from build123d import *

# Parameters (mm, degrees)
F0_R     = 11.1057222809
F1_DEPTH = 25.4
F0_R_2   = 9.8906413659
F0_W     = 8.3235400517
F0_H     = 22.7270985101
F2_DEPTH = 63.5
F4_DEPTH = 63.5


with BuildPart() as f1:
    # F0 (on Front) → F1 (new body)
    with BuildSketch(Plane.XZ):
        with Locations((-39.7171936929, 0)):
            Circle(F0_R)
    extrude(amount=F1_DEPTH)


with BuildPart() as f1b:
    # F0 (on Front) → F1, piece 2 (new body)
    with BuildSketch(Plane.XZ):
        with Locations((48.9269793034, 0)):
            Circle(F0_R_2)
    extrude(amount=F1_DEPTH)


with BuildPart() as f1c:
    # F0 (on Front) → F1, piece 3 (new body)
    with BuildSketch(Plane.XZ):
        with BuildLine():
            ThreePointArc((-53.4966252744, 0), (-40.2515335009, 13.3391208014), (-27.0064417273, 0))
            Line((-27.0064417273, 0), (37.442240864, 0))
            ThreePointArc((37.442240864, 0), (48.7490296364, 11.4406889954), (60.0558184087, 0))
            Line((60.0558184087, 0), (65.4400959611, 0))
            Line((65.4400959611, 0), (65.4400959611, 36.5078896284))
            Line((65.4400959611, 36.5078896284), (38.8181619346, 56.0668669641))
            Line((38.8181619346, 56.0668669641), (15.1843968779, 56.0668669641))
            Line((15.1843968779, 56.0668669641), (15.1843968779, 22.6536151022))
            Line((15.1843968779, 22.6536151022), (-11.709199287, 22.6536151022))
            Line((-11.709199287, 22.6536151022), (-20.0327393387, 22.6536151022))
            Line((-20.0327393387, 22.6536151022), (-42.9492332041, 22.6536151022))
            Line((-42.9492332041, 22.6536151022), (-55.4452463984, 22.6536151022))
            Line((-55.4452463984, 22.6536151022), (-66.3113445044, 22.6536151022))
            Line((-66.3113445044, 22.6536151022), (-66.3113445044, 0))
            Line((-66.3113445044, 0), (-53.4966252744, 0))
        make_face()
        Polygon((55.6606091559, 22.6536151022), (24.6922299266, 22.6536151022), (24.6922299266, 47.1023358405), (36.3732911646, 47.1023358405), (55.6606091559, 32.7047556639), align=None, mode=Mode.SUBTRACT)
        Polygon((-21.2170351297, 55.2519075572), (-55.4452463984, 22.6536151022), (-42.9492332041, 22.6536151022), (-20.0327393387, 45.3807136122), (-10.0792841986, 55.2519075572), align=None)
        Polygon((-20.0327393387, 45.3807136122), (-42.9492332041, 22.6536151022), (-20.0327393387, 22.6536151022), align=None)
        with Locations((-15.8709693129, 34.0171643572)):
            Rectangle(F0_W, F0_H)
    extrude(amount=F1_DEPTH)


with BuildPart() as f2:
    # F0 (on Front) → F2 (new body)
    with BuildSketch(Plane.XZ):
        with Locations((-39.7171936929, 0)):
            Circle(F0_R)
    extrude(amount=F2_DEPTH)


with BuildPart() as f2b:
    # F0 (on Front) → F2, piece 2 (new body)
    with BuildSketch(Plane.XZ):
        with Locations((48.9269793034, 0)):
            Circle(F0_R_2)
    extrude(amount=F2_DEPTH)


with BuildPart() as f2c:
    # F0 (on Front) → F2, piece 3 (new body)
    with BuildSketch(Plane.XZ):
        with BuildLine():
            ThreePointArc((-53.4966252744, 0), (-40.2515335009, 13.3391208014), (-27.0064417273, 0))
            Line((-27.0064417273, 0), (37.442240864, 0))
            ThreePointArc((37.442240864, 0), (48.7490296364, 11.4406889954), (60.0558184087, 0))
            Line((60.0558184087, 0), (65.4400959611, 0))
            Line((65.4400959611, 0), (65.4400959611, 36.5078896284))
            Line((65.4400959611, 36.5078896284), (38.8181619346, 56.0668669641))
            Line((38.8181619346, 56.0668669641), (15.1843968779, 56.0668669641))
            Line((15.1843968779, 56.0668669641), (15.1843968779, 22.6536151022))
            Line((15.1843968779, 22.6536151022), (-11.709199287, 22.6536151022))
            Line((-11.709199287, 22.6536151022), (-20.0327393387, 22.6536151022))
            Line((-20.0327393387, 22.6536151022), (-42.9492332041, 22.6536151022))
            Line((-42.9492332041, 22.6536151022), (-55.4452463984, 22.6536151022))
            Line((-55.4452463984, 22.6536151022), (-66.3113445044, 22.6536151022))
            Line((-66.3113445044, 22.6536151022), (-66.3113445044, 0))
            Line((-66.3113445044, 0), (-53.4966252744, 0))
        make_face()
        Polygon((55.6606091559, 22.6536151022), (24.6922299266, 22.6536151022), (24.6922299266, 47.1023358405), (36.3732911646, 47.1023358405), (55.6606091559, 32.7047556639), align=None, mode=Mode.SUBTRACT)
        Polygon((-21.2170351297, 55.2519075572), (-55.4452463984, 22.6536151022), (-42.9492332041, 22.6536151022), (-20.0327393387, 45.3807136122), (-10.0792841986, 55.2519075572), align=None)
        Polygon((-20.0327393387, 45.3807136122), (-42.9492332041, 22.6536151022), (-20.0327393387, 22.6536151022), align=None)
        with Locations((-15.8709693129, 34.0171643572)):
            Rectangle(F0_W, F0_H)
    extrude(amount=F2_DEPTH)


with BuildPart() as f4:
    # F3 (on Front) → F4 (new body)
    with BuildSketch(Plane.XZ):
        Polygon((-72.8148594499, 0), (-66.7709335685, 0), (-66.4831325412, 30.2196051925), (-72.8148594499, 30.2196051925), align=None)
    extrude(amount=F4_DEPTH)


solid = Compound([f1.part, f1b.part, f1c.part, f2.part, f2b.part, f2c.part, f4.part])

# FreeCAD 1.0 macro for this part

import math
import FreeCAD as App
import Part
import Sketcher
from FreeCAD import Vector
Q = App.Units.Quantity

doc = App.newDocument("Part")
body = doc.addObject("PartDesign::Body", "Body")

# Sketch on XZ plane
sketch1 = body.newObject("Sketcher::SketchObject", "Sketch")
sketch1.AttachmentSupport = (doc.getObject("XZ_Plane"), [""])
sketch1.MapMode = "FlatFace"
sketch1.addGeometry(Part.Circle(Vector(-40, 0, 0), Vector(0, 0, 1), 11), False)
sketch1.addConstraint([
    Sketcher.Constraint("PointOnObject", 0, 3, -1),
    Sketcher.Constraint("Diameter", 0, Q("22.211445 mm")),
    Sketcher.Constraint("DistanceX", 0, 3, -1, 1, Q("39.717194 mm")),
])
pad1 = body.newObject("PartDesign::Pad", "Pad")
pad1.Profile = sketch1
pad1.Length = Q("1 in")
body2 = doc.addObject("PartDesign::Body", "Body001")

# Sketch on XZ plane
sketch2 = body2.newObject("Sketcher::SketchObject", "Sketch001")
sketch2.AttachmentSupport = (doc.getObject("XZ_Plane001"), [""])
sketch2.MapMode = "FlatFace"
sketch2.addGeometry(Part.Circle(Vector(49, 0, 0), Vector(0, 0, 1), 10), False)
sketch2.addConstraint([
    Sketcher.Constraint("PointOnObject", 0, 3, -1),
    Sketcher.Constraint("Diameter", 0, Q("19.781283 mm")),
    Sketcher.Constraint("DistanceX", -1, 1, 0, 3, Q("48.926979 mm")),
])
pad2 = body2.newObject("PartDesign::Pad", "Pad001")
pad2.Profile = sketch2
pad2.Length = Q("1 in")
body3 = doc.addObject("PartDesign::Body", "Body002")

# Sketch on XZ plane
sketch3 = body3.newObject("Sketcher::SketchObject", "Sketch002")
sketch3.AttachmentSupport = (doc.getObject("XZ_Plane002"), [""])
sketch3.MapMode = "FlatFace"
sketch3.addGeometry([
    Part.ArcOfCircle(Part.Circle(Vector(-40, 0, 0), Vector(0, 0, 1), 13), math.radians(0), math.radians(180)),  # 0
    Part.LineSegment(Vector(-27, 0, 0), Vector(37, 0, 0)),  # 1
    Part.ArcOfCircle(Part.Circle(Vector(49, 0, 0), Vector(0, 0, 1), 11), math.radians(-1), math.radians(181)),  # 2
    Part.LineSegment(Vector(60, 0, 0), Vector(65, 0, 0)),  # 3
    Part.LineSegment(Vector(65, 0, 0), Vector(65, 37, 0)),  # 4
    Part.LineSegment(Vector(65, 37, 0), Vector(39, 56, 0)),  # 5
    Part.LineSegment(Vector(39, 56, 0), Vector(15, 56, 0)),  # 6
    Part.LineSegment(Vector(15, 56, 0), Vector(15, 23, 0)),  # 7
    Part.LineSegment(Vector(15, 23, 0), Vector(-12, 23, 0)),  # 8
    Part.LineSegment(Vector(-12, 23, 0), Vector(-12, 45, 0)),  # 9
    Part.LineSegment(Vector(-12, 45, 0), Vector(-20, 45, 0)),  # 10
    Part.LineSegment(Vector(-20, 45, 0), Vector(-10, 55, 0)),  # 11
    Part.LineSegment(Vector(-10, 55, 0), Vector(-21, 55, 0)),  # 12
    Part.LineSegment(Vector(-21, 55, 0), Vector(-55, 23, 0)),  # 13
    Part.LineSegment(Vector(-55, 23, 0), Vector(-66, 23, 0)),  # 14
    Part.LineSegment(Vector(-66, 23, 0), Vector(-66, 0, 0)),  # 15
    Part.LineSegment(Vector(-66, 0, 0), Vector(-53, 0, 0)),  # 16
    Part.LineSegment(Vector(56, 33, 0), Vector(56, 23, 0)),  # 17
    Part.LineSegment(Vector(56, 23, 0), Vector(25, 23, 0)),  # 18
    Part.LineSegment(Vector(25, 23, 0), Vector(25, 47, 0)),  # 19
    Part.LineSegment(Vector(25, 47, 0), Vector(36, 47, 0)),  # 20
    Part.LineSegment(Vector(36, 47, 0), Vector(56, 33, 0)),  # 21
], False)
sketch3.addConstraint([
    Sketcher.Constraint("Coincident", 0, 1, 1, 1),
    Sketcher.Constraint("Coincident", 1, 2, 2, 2),
    Sketcher.Constraint("Coincident", 2, 1, 3, 1),
    Sketcher.Constraint("Coincident", 3, 2, 4, 1),
    Sketcher.Constraint("Coincident", 4, 2, 5, 1),
    Sketcher.Constraint("Coincident", 5, 2, 6, 1),
    Sketcher.Constraint("Coincident", 6, 2, 7, 1),
    Sketcher.Constraint("Coincident", 7, 2, 8, 1),
    Sketcher.Constraint("Coincident", 8, 2, 9, 1),
    Sketcher.Constraint("Coincident", 9, 2, 10, 1),
    Sketcher.Constraint("Coincident", 10, 2, 11, 1),
    Sketcher.Constraint("Coincident", 11, 2, 12, 1),
    Sketcher.Constraint("Coincident", 12, 2, 13, 1),
    Sketcher.Constraint("Coincident", 13, 2, 14, 1),
    Sketcher.Constraint("Coincident", 14, 2, 15, 1),
    Sketcher.Constraint("Coincident", 15, 2, 16, 1),
    Sketcher.Constraint("Coincident", 16, 2, 0, 2),
    Sketcher.Constraint("Coincident", 17, 2, 18, 1),
    Sketcher.Constraint("Coincident", 18, 2, 19, 1),
    Sketcher.Constraint("Coincident", 19, 2, 20, 1),
    Sketcher.Constraint("Coincident", 20, 2, 21, 1),
    Sketcher.Constraint("Coincident", 21, 2, 17, 1),
    Sketcher.Constraint("Horizontal", 1),
    Sketcher.Constraint("Horizontal", 3),
    Sketcher.Constraint("Vertical", 4),
    Sketcher.Constraint("Horizontal", 6),
    Sketcher.Constraint("Vertical", 7),
    Sketcher.Constraint("Horizontal", 8),
    Sketcher.Constraint("Vertical", 9),
    Sketcher.Constraint("Horizontal", 10),
    Sketcher.Constraint("Horizontal", 12),
    Sketcher.Constraint("Horizontal", 14),
    Sketcher.Constraint("Vertical", 15),
    Sketcher.Constraint("Horizontal", 16),
    Sketcher.Constraint("Vertical", 17),
    Sketcher.Constraint("Horizontal", 18),
    Sketcher.Constraint("Vertical", 19),
    Sketcher.Constraint("Horizontal", 20),
    Sketcher.Constraint("PointOnObject", 0, 1, -1),
    Sketcher.Constraint("PointOnObject", 2, 1, -1),
    Sketcher.Constraint("PointOnObject", 15, 2, -1),
    Sketcher.Constraint("Horizontal", 8, 2, 13, 2),
    Sketcher.Constraint("Horizontal", 14, 2, 17, 2),
    Sketcher.Constraint("Distance", 11, Q("0.5519002 in")),
    Sketcher.Constraint("DistanceX", 14, 2, 14, 1, Q("10.866098 mm")),
    Sketcher.Constraint("DistanceY", 9, 1, 9, 2, Q("22.727099 mm")),
    Sketcher.Constraint("Radius", 0, Q("13.245423 mm")),
    Sketcher.Constraint("Radius", 2, Q("11.307572 mm")),
    Sketcher.Constraint("DistanceX", 10, 2, 10, 1, Q("8.32354 mm")),
    Sketcher.Constraint("DistanceX", 12, 2, 12, 1, Q("11.137751 mm")),
    Sketcher.Constraint("DistanceX", 16, 1, 16, 2, Q("12.814719 mm")),
    Sketcher.Constraint("DistanceX", 18, 2, 18, 1, Q("30.968379 mm")),
    Sketcher.Constraint("DistanceX", 20, 1, 20, 2, Q("11.681061 mm")),
    Sketcher.Constraint("DistanceY", 4, 1, 4, 2, Q("36.50789 mm")),
    Sketcher.Constraint("DistanceY", 7, 2, 7, 1, Q("33.413252 mm")),
    Sketcher.Constraint("DistanceY", 17, 2, 17, 1, Q("10.051141 mm")),
    Sketcher.Constraint("DistanceY", 19, 1, 19, 2, Q("24.448721 mm")),
    Sketcher.Constraint("DistanceX", 8, 2, -1, 1, Q("11.709199 mm")),
    Sketcher.Constraint("DistanceX", 6, 2, 4, 2, Q("50.255699 mm")),
    Sketcher.Constraint("DistanceY", 2, 3, 7, 2, Q("22.520498 mm")),
    Sketcher.Constraint("DistanceX", 18, 2, 2, 3, Q("24.0568 mm")),
    Sketcher.Constraint("DistanceX", 1, 1, 1, 2, Q("64.448683 mm")),
    Sketcher.Constraint("DistanceX", 3, 1, 3, 2, Q("5.384278 mm")),
    Sketcher.Constraint("DistanceX", 6, 2, 6, 1, Q("23.633765 mm")),
    Sketcher.Constraint("DistanceX", 8, 2, 8, 1, Q("26.893596 mm")),
    Sketcher.Constraint("DistanceY", 15, 2, 15, 1, Q("22.653615 mm")),
    Sketcher.Constraint("DistanceY", 0, 3, 2, 3, Q("0.039419 mm")),
    Sketcher.Constraint("DistanceX", 11, 2, 6, 2, Q("25.263681 mm")),
])
pad3 = body3.newObject("PartDesign::Pad", "Pad002")
pad3.Profile = sketch3
pad3.Length = Q("1 in")
body4 = doc.addObject("PartDesign::Body", "Body003")

# Sketch on XZ plane
sketch4 = body4.newObject("Sketcher::SketchObject", "Sketch003")
sketch4.AttachmentSupport = (doc.getObject("XZ_Plane003"), [""])
sketch4.MapMode = "FlatFace"
sketch4.addGeometry(Part.Circle(Vector(-40, 0, 0), Vector(0, 0, 1), 11), False)
sketch4.addConstraint([
    Sketcher.Constraint("PointOnObject", 0, 3, -1),
    Sketcher.Constraint("Diameter", 0, Q("22.211445 mm")),
    Sketcher.Constraint("DistanceX", 0, 3, -1, 1, Q("39.717194 mm")),
])
pad4 = body4.newObject("PartDesign::Pad", "Pad003")
pad4.Profile = sketch4
pad4.Length = Q("2.5 in")
body5 = doc.addObject("PartDesign::Body", "Body004")

# Sketch on XZ plane
sketch5 = body5.newObject("Sketcher::SketchObject", "Sketch004")
sketch5.AttachmentSupport = (doc.getObject("XZ_Plane004"), [""])
sketch5.MapMode = "FlatFace"
sketch5.addGeometry(Part.Circle(Vector(49, 0, 0), Vector(0, 0, 1), 10), False)
sketch5.addConstraint([
    Sketcher.Constraint("PointOnObject", 0, 3, -1),
    Sketcher.Constraint("Diameter", 0, Q("19.781283 mm")),
    Sketcher.Constraint("DistanceX", -1, 1, 0, 3, Q("48.926979 mm")),
])
pad5 = body5.newObject("PartDesign::Pad", "Pad004")
pad5.Profile = sketch5
pad5.Length = Q("2.5 in")
body6 = doc.addObject("PartDesign::Body", "Body005")

# Sketch on XZ plane
sketch6 = body6.newObject("Sketcher::SketchObject", "Sketch005")
sketch6.AttachmentSupport = (doc.getObject("XZ_Plane005"), [""])
sketch6.MapMode = "FlatFace"
sketch6.addGeometry([
    Part.ArcOfCircle(Part.Circle(Vector(-40, 0, 0), Vector(0, 0, 1), 13), math.radians(0), math.radians(180)),  # 0
    Part.LineSegment(Vector(-27, 0, 0), Vector(37, 0, 0)),  # 1
    Part.ArcOfCircle(Part.Circle(Vector(49, 0, 0), Vector(0, 0, 1), 11), math.radians(-1), math.radians(181)),  # 2
    Part.LineSegment(Vector(60, 0, 0), Vector(65, 0, 0)),  # 3
    Part.LineSegment(Vector(65, 0, 0), Vector(65, 37, 0)),  # 4
    Part.LineSegment(Vector(65, 37, 0), Vector(39, 56, 0)),  # 5
    Part.LineSegment(Vector(39, 56, 0), Vector(15, 56, 0)),  # 6
    Part.LineSegment(Vector(15, 56, 0), Vector(15, 23, 0)),  # 7
    Part.LineSegment(Vector(15, 23, 0), Vector(-12, 23, 0)),  # 8
    Part.LineSegment(Vector(-12, 23, 0), Vector(-12, 45, 0)),  # 9
    Part.LineSegment(Vector(-12, 45, 0), Vector(-20, 45, 0)),  # 10
    Part.LineSegment(Vector(-20, 45, 0), Vector(-10, 55, 0)),  # 11
    Part.LineSegment(Vector(-10, 55, 0), Vector(-21, 55, 0)),  # 12
    Part.LineSegment(Vector(-21, 55, 0), Vector(-55, 23, 0)),  # 13
    Part.LineSegment(Vector(-55, 23, 0), Vector(-66, 23, 0)),  # 14
    Part.LineSegment(Vector(-66, 23, 0), Vector(-66, 0, 0)),  # 15
    Part.LineSegment(Vector(-66, 0, 0), Vector(-53, 0, 0)),  # 16
    Part.LineSegment(Vector(56, 33, 0), Vector(56, 23, 0)),  # 17
    Part.LineSegment(Vector(56, 23, 0), Vector(25, 23, 0)),  # 18
    Part.LineSegment(Vector(25, 23, 0), Vector(25, 47, 0)),  # 19
    Part.LineSegment(Vector(25, 47, 0), Vector(36, 47, 0)),  # 20
    Part.LineSegment(Vector(36, 47, 0), Vector(56, 33, 0)),  # 21
], False)
sketch6.addConstraint([
    Sketcher.Constraint("Coincident", 0, 1, 1, 1),
    Sketcher.Constraint("Coincident", 1, 2, 2, 2),
    Sketcher.Constraint("Coincident", 2, 1, 3, 1),
    Sketcher.Constraint("Coincident", 3, 2, 4, 1),
    Sketcher.Constraint("Coincident", 4, 2, 5, 1),
    Sketcher.Constraint("Coincident", 5, 2, 6, 1),
    Sketcher.Constraint("Coincident", 6, 2, 7, 1),
    Sketcher.Constraint("Coincident", 7, 2, 8, 1),
    Sketcher.Constraint("Coincident", 8, 2, 9, 1),
    Sketcher.Constraint("Coincident", 9, 2, 10, 1),
    Sketcher.Constraint("Coincident", 10, 2, 11, 1),
    Sketcher.Constraint("Coincident", 11, 2, 12, 1),
    Sketcher.Constraint("Coincident", 12, 2, 13, 1),
    Sketcher.Constraint("Coincident", 13, 2, 14, 1),
    Sketcher.Constraint("Coincident", 14, 2, 15, 1),
    Sketcher.Constraint("Coincident", 15, 2, 16, 1),
    Sketcher.Constraint("Coincident", 16, 2, 0, 2),
    Sketcher.Constraint("Coincident", 17, 2, 18, 1),
    Sketcher.Constraint("Coincident", 18, 2, 19, 1),
    Sketcher.Constraint("Coincident", 19, 2, 20, 1),
    Sketcher.Constraint("Coincident", 20, 2, 21, 1),
    Sketcher.Constraint("Coincident", 21, 2, 17, 1),
    Sketcher.Constraint("Horizontal", 1),
    Sketcher.Constraint("Horizontal", 3),
    Sketcher.Constraint("Vertical", 4),
    Sketcher.Constraint("Horizontal", 6),
    Sketcher.Constraint("Vertical", 7),
    Sketcher.Constraint("Horizontal", 8),
    Sketcher.Constraint("Vertical", 9),
    Sketcher.Constraint("Horizontal", 10),
    Sketcher.Constraint("Horizontal", 12),
    Sketcher.Constraint("Horizontal", 14),
    Sketcher.Constraint("Vertical", 15),
    Sketcher.Constraint("Horizontal", 16),
    Sketcher.Constraint("Vertical", 17),
    Sketcher.Constraint("Horizontal", 18),
    Sketcher.Constraint("Vertical", 19),
    Sketcher.Constraint("Horizontal", 20),
    Sketcher.Constraint("PointOnObject", 0, 1, -1),
    Sketcher.Constraint("PointOnObject", 2, 1, -1),
    Sketcher.Constraint("PointOnObject", 15, 2, -1),
    Sketcher.Constraint("Horizontal", 8, 2, 13, 2),
    Sketcher.Constraint("Horizontal", 14, 2, 17, 2),
    Sketcher.Constraint("Distance", 11, Q("0.5519002 in")),
    Sketcher.Constraint("DistanceX", 14, 2, 14, 1, Q("10.866098 mm")),
    Sketcher.Constraint("DistanceY", 9, 1, 9, 2, Q("22.727099 mm")),
    Sketcher.Constraint("Radius", 0, Q("13.245423 mm")),
    Sketcher.Constraint("Radius", 2, Q("11.307572 mm")),
    Sketcher.Constraint("DistanceX", 10, 2, 10, 1, Q("8.32354 mm")),
    Sketcher.Constraint("DistanceX", 12, 2, 12, 1, Q("11.137751 mm")),
    Sketcher.Constraint("DistanceX", 16, 1, 16, 2, Q("12.814719 mm")),
    Sketcher.Constraint("DistanceX", 18, 2, 18, 1, Q("30.968379 mm")),
    Sketcher.Constraint("DistanceX", 20, 1, 20, 2, Q("11.681061 mm")),
    Sketcher.Constraint("DistanceY", 4, 1, 4, 2, Q("36.50789 mm")),
    Sketcher.Constraint("DistanceY", 7, 2, 7, 1, Q("33.413252 mm")),
    Sketcher.Constraint("DistanceY", 17, 2, 17, 1, Q("10.051141 mm")),
    Sketcher.Constraint("DistanceY", 19, 1, 19, 2, Q("24.448721 mm")),
    Sketcher.Constraint("DistanceX", 8, 2, -1, 1, Q("11.709199 mm")),
    Sketcher.Constraint("DistanceX", 6, 2, 4, 2, Q("50.255699 mm")),
    Sketcher.Constraint("DistanceY", 2, 3, 7, 2, Q("22.520498 mm")),
    Sketcher.Constraint("DistanceX", 18, 2, 2, 3, Q("24.0568 mm")),
    Sketcher.Constraint("DistanceX", 1, 1, 1, 2, Q("64.448683 mm")),
    Sketcher.Constraint("DistanceX", 3, 1, 3, 2, Q("5.384278 mm")),
    Sketcher.Constraint("DistanceX", 6, 2, 6, 1, Q("23.633765 mm")),
    Sketcher.Constraint("DistanceX", 8, 2, 8, 1, Q("26.893596 mm")),
    Sketcher.Constraint("DistanceY", 15, 2, 15, 1, Q("22.653615 mm")),
    Sketcher.Constraint("DistanceY", 0, 3, 2, 3, Q("0.039419 mm")),
    Sketcher.Constraint("DistanceX", 11, 2, 6, 2, Q("25.263681 mm")),
])
pad6 = body6.newObject("PartDesign::Pad", "Pad005")
pad6.Profile = sketch6
pad6.Length = Q("2.5 in")
body7 = doc.addObject("PartDesign::Body", "Body006")

# Sketch on XZ plane
sketch7 = body7.newObject("Sketcher::SketchObject", "Sketch006")
sketch7.AttachmentSupport = (doc.getObject("XZ_Plane006"), [""])
sketch7.MapMode = "FlatFace"
sketch7.addGeometry([
    Part.LineSegment(Vector(-73, 0, 0), Vector(-67, 0, 0)),
    Part.LineSegment(Vector(-67, 0, 0), Vector(-66, 30, 0)),
    Part.LineSegment(Vector(-66, 30, 0), Vector(-73, 30, 0)),
    Part.LineSegment(Vector(-73, 30, 0), Vector(-73, 0, 0)),
], False)
sketch7.addConstraint([
    Sketcher.Constraint("Coincident", 0, 2, 1, 1),
    Sketcher.Constraint("Coincident", 1, 2, 2, 1),
    Sketcher.Constraint("Coincident", 2, 2, 3, 1),
    Sketcher.Constraint("Coincident", 3, 2, 0, 1),
    Sketcher.Constraint("Horizontal", 0),
    Sketcher.Constraint("Horizontal", 2),
    Sketcher.Constraint("Vertical", 3),
    Sketcher.Constraint("PointOnObject", 0, 2, -1),
    Sketcher.Constraint("DistanceX", 0, 2, 1, 2, Q("0.287801 mm")),
    Sketcher.Constraint("DistanceX", 0, 1, 0, 2, Q("6.043926 mm")),
    Sketcher.Constraint("DistanceY", 3, 2, 3, 1, Q("30.219605 mm")),
    Sketcher.Constraint("DistanceX", 2, 2, -1, 1, Q("72.814859 mm")),
])
pad7 = body7.newObject("PartDesign::Pad", "Pad006")
pad7.Profile = sketch7
pad7.Length = Q("2.5 in")

doc.recompute()
